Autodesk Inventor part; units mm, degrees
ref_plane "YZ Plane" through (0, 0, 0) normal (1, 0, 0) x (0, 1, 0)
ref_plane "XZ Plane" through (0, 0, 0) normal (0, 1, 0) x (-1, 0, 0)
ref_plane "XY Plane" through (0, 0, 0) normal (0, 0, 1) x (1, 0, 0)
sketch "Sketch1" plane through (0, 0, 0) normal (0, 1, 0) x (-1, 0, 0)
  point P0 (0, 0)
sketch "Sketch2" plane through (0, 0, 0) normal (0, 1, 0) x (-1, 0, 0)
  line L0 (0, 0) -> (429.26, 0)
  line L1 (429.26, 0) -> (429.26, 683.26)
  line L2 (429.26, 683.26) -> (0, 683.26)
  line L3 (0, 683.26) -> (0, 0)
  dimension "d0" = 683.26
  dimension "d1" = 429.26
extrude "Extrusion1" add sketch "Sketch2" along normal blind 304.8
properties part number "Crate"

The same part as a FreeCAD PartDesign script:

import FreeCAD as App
import Part
import Sketcher
Q = App.Units.Quantity

doc = App.newDocument("Part")
body = doc.addObject("PartDesign::Body", "Body")

# Sketch on XZ plane
sketch1 = body.newObject("Sketcher::SketchObject", "Sketch")
sketch1.AttachmentSupport = (doc.getObject("XZ_Plane"), [""])
sketch1.MapMode = "FlatFace"
sketch1.addGeometry([
    Part.LineSegment(App.Vector(0, 683, 0), App.Vector(0, 0, 0)),
    Part.LineSegment(App.Vector(0, 0, 0), App.Vector(-429, 0, 0)),
    Part.LineSegment(App.Vector(-429, 0, 0), App.Vector(-429, 683, 0)),
    Part.LineSegment(App.Vector(-429, 683, 0), App.Vector(0, 683, 0)),
], False)
sketch1.addConstraint([
    Sketcher.Constraint("Coincident", 0, 2, 1, 1),
    Sketcher.Constraint("Coincident", 1, 2, 2, 1),
    Sketcher.Constraint("Coincident", 2, 2, 3, 1),
    Sketcher.Constraint("Coincident", 3, 2, 0, 1),
    Sketcher.Constraint("Vertical", 0),
    Sketcher.Constraint("Horizontal", 1),
    Sketcher.Constraint("Vertical", 2),
    Sketcher.Constraint("Horizontal", 3),
    Sketcher.Constraint("Coincident", 0, 2, -1, 1),
    Sketcher.Constraint("DistanceX", 1, 2, 1, 1, Q("16.9 in")),
    Sketcher.Constraint("DistanceY", 0, 2, 0, 1, Q("26.9 in")),
])
pad1 = body.newObject("PartDesign::Pad", "Pad")
pad1.Profile = sketch1
pad1.Length = Q("12 in")
pad1.Reversed = True

doc.recompute()
